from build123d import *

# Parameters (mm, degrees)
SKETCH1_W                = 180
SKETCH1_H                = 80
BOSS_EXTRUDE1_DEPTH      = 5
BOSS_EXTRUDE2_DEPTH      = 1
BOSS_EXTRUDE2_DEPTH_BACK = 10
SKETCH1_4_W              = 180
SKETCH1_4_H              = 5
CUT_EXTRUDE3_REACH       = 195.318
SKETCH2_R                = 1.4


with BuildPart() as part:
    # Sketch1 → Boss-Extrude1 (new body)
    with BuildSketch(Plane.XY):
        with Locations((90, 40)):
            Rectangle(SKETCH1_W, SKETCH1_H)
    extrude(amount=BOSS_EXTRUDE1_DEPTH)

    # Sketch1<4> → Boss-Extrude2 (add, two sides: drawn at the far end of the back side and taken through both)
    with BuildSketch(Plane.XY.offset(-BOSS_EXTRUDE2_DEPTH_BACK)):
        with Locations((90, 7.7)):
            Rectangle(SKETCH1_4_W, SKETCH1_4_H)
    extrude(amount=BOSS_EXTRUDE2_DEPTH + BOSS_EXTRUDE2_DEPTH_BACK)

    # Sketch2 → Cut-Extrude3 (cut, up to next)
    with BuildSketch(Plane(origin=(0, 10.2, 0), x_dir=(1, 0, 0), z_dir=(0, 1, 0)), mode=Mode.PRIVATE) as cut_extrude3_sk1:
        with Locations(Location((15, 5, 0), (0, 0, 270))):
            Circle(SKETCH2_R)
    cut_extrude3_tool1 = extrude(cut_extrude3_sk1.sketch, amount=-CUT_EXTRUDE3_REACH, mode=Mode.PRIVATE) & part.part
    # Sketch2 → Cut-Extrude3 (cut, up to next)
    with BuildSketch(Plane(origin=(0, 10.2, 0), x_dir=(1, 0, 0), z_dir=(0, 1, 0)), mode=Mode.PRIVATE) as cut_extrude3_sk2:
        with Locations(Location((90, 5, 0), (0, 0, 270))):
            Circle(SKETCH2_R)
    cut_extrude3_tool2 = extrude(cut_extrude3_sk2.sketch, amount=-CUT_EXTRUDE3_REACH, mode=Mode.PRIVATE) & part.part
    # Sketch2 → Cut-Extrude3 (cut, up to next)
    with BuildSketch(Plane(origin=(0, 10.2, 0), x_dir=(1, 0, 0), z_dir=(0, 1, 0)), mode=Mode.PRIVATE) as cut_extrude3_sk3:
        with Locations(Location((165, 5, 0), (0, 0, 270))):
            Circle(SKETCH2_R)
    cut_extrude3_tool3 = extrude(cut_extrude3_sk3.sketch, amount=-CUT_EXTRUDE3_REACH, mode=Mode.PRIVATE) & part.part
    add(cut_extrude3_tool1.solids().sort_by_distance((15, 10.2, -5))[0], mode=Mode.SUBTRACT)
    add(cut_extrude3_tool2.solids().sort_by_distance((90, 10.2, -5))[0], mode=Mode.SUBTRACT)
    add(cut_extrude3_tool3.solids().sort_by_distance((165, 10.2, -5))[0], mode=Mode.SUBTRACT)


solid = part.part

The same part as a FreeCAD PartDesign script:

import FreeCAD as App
import Part
import Sketcher

V = App.Vector

doc = App.newDocument("Part")
body = doc.addObject("PartDesign::Body", "Body")

# Sketch on XY plane
sketch1 = doc.addObject("Sketcher::SketchObject", "Sketch")
body.addObject(sketch1)
sketch1.AttachmentSupport = (doc.XY_Plane, [""])
sketch1.MapMode = "FlatFace"
sketch1.addGeometry([
    Part.LineSegment(V(0, 80, 0), V(0, 0, 0)),
    Part.LineSegment(V(0, 0, 0), V(180, 0, 0)),
    Part.LineSegment(V(180, 0, 0), V(180, 80, 0)),
    Part.LineSegment(V(180, 80, 0), V(0, 80, 0)),
], False)
sketch1.addConstraint([
    Sketcher.Constraint("Coincident", 0, 2, 1, 1),
    Sketcher.Constraint("Coincident", 1, 2, 2, 1),
    Sketcher.Constraint("Coincident", 2, 2, 3, 1),
    Sketcher.Constraint("Coincident", 3, 2, 0, 1),
    Sketcher.Constraint("Vertical", 0),
    Sketcher.Constraint("Horizontal", 1),
    Sketcher.Constraint("Vertical", 2),
    Sketcher.Constraint("Horizontal", 3),
    Sketcher.Constraint("Coincident", 0, 2, -1, 1),
    Sketcher.Constraint("DistanceX", 1, 1, 1, 2, 180.0),
    Sketcher.Constraint("DistanceY", 0, 2, 0, 1, 80.0),
])
pad1 = doc.addObject("PartDesign::Pad", "Pad")
body.addObject(pad1)
pad1.Profile = sketch1
pad1.Length = 5

# Sketch on XY plane
sketch2 = doc.addObject("Sketcher::SketchObject", "Sketch001")
body.addObject(sketch2)
sketch2.AttachmentSupport = (doc.XY_Plane, [""])
sketch2.MapMode = "FlatFace"
sketch2.addGeometry([
    Part.LineSegment(V(0, 10.2, 0), V(0, 5.2, 0)),
    Part.LineSegment(V(0, 5.2, 0), V(180, 5.2, 0)),
    Part.LineSegment(V(180, 5.2, 0), V(180, 10.2, 0)),
    Part.LineSegment(V(180, 10.2, 0), V(0, 10.2, 0)),
], False)
sketch2.addConstraint([
    Sketcher.Constraint("Coincident", 0, 2, 1, 1),
    Sketcher.Constraint("Coincident", 1, 2, 2, 1),
    Sketcher.Constraint("Coincident", 2, 2, 3, 1),
    Sketcher.Constraint("Coincident", 3, 2, 0, 1),
    Sketcher.Constraint("Vertical", 0),
    Sketcher.Constraint("Horizontal", 1),
    Sketcher.Constraint("Vertical", 2),
    Sketcher.Constraint("Horizontal", 3),
    Sketcher.Constraint("PointOnObject", 0, 2, -2),
    Sketcher.Constraint("DistanceX", 1, 1, 1, 2, 180.0),
    Sketcher.Constraint("DistanceY", 0, 2, 0, 1, 5.0),
    Sketcher.Constraint("DistanceY", -1, 1, 0, 2, 5.2),
])
pad2 = doc.addObject("PartDesign::Pad", "Pad001")
body.addObject(pad2)
pad2.Profile = sketch2
pad2.Type = "TwoLengths"
pad2.Length = 1
pad2.Length2 = 10

# Sketch on XZ plane
sketch3 = doc.addObject("Sketcher::SketchObject", "Sketch002")
body.addObject(sketch3)
sketch3.AttachmentSupport = (doc.XZ_Plane, [""])
sketch3.MapMode = "FlatFace"
sketch3.AttachmentOffset = App.Placement(V(0, 0, -10.2), App.Rotation())
sketch3.addGeometry(Part.Circle(V(15, -5, 0), V(0, 0, 1), 1.4), False)
sketch3.addConstraint([
    Sketcher.Constraint("Diameter", 0, 2.8),
    Sketcher.Constraint("DistanceX", -1, 1, 0, 3, 15.0),
    Sketcher.Constraint("DistanceY", 0, 3, -1, 1, 5.0),
])
pocket1 = doc.addObject("PartDesign::Pocket", "Pocket")
body.addObject(pocket1)
pocket1.Profile = sketch3
pocket1.Type = "UpToFirst"
pocket1.Reversed = True

# Sketch on XZ plane
sketch4 = doc.addObject("Sketcher::SketchObject", "Sketch003")
body.addObject(sketch4)
sketch4.AttachmentSupport = (doc.XZ_Plane, [""])
sketch4.MapMode = "FlatFace"
sketch4.AttachmentOffset = App.Placement(V(0, 0, -10.2), App.Rotation())
sketch4.addGeometry(Part.Circle(V(90, -5, 0), V(0, 0, 1), 1.4), False)
sketch4.addConstraint([
    Sketcher.Constraint("Diameter", 0, 2.8),
    Sketcher.Constraint("DistanceX", -1, 1, 0, 3, 90.0),
    Sketcher.Constraint("DistanceY", 0, 3, -1, 1, 5.0),
])
pocket2 = doc.addObject("PartDesign::Pocket", "Pocket001")
body.addObject(pocket2)
pocket2.Profile = sketch4
pocket2.Type = "UpToFirst"
pocket2.Reversed = True

# Sketch on XZ plane
sketch5 = doc.addObject("Sketcher::SketchObject", "Sketch004")
body.addObject(sketch5)
sketch5.AttachmentSupport = (doc.XZ_Plane, [""])
sketch5.MapMode = "FlatFace"
sketch5.AttachmentOffset = App.Placement(V(0, 0, -10.2), App.Rotation())
sketch5.addGeometry(Part.Circle(V(165, -5, 0), V(0, 0, 1), 1.4), False)
sketch5.addConstraint([
    Sketcher.Constraint("Diameter", 0, 2.8),
    Sketcher.Constraint("DistanceX", -1, 1, 0, 3, 165.0),
    Sketcher.Constraint("DistanceY", 0, 3, -1, 1, 5.0),
])
pocket3 = doc.addObject("PartDesign::Pocket", "Pocket002")
body.addObject(pocket3)
pocket3.Profile = sketch5
pocket3.Type = "UpToFirst"
pocket3.Reversed = True

doc.recompute()
